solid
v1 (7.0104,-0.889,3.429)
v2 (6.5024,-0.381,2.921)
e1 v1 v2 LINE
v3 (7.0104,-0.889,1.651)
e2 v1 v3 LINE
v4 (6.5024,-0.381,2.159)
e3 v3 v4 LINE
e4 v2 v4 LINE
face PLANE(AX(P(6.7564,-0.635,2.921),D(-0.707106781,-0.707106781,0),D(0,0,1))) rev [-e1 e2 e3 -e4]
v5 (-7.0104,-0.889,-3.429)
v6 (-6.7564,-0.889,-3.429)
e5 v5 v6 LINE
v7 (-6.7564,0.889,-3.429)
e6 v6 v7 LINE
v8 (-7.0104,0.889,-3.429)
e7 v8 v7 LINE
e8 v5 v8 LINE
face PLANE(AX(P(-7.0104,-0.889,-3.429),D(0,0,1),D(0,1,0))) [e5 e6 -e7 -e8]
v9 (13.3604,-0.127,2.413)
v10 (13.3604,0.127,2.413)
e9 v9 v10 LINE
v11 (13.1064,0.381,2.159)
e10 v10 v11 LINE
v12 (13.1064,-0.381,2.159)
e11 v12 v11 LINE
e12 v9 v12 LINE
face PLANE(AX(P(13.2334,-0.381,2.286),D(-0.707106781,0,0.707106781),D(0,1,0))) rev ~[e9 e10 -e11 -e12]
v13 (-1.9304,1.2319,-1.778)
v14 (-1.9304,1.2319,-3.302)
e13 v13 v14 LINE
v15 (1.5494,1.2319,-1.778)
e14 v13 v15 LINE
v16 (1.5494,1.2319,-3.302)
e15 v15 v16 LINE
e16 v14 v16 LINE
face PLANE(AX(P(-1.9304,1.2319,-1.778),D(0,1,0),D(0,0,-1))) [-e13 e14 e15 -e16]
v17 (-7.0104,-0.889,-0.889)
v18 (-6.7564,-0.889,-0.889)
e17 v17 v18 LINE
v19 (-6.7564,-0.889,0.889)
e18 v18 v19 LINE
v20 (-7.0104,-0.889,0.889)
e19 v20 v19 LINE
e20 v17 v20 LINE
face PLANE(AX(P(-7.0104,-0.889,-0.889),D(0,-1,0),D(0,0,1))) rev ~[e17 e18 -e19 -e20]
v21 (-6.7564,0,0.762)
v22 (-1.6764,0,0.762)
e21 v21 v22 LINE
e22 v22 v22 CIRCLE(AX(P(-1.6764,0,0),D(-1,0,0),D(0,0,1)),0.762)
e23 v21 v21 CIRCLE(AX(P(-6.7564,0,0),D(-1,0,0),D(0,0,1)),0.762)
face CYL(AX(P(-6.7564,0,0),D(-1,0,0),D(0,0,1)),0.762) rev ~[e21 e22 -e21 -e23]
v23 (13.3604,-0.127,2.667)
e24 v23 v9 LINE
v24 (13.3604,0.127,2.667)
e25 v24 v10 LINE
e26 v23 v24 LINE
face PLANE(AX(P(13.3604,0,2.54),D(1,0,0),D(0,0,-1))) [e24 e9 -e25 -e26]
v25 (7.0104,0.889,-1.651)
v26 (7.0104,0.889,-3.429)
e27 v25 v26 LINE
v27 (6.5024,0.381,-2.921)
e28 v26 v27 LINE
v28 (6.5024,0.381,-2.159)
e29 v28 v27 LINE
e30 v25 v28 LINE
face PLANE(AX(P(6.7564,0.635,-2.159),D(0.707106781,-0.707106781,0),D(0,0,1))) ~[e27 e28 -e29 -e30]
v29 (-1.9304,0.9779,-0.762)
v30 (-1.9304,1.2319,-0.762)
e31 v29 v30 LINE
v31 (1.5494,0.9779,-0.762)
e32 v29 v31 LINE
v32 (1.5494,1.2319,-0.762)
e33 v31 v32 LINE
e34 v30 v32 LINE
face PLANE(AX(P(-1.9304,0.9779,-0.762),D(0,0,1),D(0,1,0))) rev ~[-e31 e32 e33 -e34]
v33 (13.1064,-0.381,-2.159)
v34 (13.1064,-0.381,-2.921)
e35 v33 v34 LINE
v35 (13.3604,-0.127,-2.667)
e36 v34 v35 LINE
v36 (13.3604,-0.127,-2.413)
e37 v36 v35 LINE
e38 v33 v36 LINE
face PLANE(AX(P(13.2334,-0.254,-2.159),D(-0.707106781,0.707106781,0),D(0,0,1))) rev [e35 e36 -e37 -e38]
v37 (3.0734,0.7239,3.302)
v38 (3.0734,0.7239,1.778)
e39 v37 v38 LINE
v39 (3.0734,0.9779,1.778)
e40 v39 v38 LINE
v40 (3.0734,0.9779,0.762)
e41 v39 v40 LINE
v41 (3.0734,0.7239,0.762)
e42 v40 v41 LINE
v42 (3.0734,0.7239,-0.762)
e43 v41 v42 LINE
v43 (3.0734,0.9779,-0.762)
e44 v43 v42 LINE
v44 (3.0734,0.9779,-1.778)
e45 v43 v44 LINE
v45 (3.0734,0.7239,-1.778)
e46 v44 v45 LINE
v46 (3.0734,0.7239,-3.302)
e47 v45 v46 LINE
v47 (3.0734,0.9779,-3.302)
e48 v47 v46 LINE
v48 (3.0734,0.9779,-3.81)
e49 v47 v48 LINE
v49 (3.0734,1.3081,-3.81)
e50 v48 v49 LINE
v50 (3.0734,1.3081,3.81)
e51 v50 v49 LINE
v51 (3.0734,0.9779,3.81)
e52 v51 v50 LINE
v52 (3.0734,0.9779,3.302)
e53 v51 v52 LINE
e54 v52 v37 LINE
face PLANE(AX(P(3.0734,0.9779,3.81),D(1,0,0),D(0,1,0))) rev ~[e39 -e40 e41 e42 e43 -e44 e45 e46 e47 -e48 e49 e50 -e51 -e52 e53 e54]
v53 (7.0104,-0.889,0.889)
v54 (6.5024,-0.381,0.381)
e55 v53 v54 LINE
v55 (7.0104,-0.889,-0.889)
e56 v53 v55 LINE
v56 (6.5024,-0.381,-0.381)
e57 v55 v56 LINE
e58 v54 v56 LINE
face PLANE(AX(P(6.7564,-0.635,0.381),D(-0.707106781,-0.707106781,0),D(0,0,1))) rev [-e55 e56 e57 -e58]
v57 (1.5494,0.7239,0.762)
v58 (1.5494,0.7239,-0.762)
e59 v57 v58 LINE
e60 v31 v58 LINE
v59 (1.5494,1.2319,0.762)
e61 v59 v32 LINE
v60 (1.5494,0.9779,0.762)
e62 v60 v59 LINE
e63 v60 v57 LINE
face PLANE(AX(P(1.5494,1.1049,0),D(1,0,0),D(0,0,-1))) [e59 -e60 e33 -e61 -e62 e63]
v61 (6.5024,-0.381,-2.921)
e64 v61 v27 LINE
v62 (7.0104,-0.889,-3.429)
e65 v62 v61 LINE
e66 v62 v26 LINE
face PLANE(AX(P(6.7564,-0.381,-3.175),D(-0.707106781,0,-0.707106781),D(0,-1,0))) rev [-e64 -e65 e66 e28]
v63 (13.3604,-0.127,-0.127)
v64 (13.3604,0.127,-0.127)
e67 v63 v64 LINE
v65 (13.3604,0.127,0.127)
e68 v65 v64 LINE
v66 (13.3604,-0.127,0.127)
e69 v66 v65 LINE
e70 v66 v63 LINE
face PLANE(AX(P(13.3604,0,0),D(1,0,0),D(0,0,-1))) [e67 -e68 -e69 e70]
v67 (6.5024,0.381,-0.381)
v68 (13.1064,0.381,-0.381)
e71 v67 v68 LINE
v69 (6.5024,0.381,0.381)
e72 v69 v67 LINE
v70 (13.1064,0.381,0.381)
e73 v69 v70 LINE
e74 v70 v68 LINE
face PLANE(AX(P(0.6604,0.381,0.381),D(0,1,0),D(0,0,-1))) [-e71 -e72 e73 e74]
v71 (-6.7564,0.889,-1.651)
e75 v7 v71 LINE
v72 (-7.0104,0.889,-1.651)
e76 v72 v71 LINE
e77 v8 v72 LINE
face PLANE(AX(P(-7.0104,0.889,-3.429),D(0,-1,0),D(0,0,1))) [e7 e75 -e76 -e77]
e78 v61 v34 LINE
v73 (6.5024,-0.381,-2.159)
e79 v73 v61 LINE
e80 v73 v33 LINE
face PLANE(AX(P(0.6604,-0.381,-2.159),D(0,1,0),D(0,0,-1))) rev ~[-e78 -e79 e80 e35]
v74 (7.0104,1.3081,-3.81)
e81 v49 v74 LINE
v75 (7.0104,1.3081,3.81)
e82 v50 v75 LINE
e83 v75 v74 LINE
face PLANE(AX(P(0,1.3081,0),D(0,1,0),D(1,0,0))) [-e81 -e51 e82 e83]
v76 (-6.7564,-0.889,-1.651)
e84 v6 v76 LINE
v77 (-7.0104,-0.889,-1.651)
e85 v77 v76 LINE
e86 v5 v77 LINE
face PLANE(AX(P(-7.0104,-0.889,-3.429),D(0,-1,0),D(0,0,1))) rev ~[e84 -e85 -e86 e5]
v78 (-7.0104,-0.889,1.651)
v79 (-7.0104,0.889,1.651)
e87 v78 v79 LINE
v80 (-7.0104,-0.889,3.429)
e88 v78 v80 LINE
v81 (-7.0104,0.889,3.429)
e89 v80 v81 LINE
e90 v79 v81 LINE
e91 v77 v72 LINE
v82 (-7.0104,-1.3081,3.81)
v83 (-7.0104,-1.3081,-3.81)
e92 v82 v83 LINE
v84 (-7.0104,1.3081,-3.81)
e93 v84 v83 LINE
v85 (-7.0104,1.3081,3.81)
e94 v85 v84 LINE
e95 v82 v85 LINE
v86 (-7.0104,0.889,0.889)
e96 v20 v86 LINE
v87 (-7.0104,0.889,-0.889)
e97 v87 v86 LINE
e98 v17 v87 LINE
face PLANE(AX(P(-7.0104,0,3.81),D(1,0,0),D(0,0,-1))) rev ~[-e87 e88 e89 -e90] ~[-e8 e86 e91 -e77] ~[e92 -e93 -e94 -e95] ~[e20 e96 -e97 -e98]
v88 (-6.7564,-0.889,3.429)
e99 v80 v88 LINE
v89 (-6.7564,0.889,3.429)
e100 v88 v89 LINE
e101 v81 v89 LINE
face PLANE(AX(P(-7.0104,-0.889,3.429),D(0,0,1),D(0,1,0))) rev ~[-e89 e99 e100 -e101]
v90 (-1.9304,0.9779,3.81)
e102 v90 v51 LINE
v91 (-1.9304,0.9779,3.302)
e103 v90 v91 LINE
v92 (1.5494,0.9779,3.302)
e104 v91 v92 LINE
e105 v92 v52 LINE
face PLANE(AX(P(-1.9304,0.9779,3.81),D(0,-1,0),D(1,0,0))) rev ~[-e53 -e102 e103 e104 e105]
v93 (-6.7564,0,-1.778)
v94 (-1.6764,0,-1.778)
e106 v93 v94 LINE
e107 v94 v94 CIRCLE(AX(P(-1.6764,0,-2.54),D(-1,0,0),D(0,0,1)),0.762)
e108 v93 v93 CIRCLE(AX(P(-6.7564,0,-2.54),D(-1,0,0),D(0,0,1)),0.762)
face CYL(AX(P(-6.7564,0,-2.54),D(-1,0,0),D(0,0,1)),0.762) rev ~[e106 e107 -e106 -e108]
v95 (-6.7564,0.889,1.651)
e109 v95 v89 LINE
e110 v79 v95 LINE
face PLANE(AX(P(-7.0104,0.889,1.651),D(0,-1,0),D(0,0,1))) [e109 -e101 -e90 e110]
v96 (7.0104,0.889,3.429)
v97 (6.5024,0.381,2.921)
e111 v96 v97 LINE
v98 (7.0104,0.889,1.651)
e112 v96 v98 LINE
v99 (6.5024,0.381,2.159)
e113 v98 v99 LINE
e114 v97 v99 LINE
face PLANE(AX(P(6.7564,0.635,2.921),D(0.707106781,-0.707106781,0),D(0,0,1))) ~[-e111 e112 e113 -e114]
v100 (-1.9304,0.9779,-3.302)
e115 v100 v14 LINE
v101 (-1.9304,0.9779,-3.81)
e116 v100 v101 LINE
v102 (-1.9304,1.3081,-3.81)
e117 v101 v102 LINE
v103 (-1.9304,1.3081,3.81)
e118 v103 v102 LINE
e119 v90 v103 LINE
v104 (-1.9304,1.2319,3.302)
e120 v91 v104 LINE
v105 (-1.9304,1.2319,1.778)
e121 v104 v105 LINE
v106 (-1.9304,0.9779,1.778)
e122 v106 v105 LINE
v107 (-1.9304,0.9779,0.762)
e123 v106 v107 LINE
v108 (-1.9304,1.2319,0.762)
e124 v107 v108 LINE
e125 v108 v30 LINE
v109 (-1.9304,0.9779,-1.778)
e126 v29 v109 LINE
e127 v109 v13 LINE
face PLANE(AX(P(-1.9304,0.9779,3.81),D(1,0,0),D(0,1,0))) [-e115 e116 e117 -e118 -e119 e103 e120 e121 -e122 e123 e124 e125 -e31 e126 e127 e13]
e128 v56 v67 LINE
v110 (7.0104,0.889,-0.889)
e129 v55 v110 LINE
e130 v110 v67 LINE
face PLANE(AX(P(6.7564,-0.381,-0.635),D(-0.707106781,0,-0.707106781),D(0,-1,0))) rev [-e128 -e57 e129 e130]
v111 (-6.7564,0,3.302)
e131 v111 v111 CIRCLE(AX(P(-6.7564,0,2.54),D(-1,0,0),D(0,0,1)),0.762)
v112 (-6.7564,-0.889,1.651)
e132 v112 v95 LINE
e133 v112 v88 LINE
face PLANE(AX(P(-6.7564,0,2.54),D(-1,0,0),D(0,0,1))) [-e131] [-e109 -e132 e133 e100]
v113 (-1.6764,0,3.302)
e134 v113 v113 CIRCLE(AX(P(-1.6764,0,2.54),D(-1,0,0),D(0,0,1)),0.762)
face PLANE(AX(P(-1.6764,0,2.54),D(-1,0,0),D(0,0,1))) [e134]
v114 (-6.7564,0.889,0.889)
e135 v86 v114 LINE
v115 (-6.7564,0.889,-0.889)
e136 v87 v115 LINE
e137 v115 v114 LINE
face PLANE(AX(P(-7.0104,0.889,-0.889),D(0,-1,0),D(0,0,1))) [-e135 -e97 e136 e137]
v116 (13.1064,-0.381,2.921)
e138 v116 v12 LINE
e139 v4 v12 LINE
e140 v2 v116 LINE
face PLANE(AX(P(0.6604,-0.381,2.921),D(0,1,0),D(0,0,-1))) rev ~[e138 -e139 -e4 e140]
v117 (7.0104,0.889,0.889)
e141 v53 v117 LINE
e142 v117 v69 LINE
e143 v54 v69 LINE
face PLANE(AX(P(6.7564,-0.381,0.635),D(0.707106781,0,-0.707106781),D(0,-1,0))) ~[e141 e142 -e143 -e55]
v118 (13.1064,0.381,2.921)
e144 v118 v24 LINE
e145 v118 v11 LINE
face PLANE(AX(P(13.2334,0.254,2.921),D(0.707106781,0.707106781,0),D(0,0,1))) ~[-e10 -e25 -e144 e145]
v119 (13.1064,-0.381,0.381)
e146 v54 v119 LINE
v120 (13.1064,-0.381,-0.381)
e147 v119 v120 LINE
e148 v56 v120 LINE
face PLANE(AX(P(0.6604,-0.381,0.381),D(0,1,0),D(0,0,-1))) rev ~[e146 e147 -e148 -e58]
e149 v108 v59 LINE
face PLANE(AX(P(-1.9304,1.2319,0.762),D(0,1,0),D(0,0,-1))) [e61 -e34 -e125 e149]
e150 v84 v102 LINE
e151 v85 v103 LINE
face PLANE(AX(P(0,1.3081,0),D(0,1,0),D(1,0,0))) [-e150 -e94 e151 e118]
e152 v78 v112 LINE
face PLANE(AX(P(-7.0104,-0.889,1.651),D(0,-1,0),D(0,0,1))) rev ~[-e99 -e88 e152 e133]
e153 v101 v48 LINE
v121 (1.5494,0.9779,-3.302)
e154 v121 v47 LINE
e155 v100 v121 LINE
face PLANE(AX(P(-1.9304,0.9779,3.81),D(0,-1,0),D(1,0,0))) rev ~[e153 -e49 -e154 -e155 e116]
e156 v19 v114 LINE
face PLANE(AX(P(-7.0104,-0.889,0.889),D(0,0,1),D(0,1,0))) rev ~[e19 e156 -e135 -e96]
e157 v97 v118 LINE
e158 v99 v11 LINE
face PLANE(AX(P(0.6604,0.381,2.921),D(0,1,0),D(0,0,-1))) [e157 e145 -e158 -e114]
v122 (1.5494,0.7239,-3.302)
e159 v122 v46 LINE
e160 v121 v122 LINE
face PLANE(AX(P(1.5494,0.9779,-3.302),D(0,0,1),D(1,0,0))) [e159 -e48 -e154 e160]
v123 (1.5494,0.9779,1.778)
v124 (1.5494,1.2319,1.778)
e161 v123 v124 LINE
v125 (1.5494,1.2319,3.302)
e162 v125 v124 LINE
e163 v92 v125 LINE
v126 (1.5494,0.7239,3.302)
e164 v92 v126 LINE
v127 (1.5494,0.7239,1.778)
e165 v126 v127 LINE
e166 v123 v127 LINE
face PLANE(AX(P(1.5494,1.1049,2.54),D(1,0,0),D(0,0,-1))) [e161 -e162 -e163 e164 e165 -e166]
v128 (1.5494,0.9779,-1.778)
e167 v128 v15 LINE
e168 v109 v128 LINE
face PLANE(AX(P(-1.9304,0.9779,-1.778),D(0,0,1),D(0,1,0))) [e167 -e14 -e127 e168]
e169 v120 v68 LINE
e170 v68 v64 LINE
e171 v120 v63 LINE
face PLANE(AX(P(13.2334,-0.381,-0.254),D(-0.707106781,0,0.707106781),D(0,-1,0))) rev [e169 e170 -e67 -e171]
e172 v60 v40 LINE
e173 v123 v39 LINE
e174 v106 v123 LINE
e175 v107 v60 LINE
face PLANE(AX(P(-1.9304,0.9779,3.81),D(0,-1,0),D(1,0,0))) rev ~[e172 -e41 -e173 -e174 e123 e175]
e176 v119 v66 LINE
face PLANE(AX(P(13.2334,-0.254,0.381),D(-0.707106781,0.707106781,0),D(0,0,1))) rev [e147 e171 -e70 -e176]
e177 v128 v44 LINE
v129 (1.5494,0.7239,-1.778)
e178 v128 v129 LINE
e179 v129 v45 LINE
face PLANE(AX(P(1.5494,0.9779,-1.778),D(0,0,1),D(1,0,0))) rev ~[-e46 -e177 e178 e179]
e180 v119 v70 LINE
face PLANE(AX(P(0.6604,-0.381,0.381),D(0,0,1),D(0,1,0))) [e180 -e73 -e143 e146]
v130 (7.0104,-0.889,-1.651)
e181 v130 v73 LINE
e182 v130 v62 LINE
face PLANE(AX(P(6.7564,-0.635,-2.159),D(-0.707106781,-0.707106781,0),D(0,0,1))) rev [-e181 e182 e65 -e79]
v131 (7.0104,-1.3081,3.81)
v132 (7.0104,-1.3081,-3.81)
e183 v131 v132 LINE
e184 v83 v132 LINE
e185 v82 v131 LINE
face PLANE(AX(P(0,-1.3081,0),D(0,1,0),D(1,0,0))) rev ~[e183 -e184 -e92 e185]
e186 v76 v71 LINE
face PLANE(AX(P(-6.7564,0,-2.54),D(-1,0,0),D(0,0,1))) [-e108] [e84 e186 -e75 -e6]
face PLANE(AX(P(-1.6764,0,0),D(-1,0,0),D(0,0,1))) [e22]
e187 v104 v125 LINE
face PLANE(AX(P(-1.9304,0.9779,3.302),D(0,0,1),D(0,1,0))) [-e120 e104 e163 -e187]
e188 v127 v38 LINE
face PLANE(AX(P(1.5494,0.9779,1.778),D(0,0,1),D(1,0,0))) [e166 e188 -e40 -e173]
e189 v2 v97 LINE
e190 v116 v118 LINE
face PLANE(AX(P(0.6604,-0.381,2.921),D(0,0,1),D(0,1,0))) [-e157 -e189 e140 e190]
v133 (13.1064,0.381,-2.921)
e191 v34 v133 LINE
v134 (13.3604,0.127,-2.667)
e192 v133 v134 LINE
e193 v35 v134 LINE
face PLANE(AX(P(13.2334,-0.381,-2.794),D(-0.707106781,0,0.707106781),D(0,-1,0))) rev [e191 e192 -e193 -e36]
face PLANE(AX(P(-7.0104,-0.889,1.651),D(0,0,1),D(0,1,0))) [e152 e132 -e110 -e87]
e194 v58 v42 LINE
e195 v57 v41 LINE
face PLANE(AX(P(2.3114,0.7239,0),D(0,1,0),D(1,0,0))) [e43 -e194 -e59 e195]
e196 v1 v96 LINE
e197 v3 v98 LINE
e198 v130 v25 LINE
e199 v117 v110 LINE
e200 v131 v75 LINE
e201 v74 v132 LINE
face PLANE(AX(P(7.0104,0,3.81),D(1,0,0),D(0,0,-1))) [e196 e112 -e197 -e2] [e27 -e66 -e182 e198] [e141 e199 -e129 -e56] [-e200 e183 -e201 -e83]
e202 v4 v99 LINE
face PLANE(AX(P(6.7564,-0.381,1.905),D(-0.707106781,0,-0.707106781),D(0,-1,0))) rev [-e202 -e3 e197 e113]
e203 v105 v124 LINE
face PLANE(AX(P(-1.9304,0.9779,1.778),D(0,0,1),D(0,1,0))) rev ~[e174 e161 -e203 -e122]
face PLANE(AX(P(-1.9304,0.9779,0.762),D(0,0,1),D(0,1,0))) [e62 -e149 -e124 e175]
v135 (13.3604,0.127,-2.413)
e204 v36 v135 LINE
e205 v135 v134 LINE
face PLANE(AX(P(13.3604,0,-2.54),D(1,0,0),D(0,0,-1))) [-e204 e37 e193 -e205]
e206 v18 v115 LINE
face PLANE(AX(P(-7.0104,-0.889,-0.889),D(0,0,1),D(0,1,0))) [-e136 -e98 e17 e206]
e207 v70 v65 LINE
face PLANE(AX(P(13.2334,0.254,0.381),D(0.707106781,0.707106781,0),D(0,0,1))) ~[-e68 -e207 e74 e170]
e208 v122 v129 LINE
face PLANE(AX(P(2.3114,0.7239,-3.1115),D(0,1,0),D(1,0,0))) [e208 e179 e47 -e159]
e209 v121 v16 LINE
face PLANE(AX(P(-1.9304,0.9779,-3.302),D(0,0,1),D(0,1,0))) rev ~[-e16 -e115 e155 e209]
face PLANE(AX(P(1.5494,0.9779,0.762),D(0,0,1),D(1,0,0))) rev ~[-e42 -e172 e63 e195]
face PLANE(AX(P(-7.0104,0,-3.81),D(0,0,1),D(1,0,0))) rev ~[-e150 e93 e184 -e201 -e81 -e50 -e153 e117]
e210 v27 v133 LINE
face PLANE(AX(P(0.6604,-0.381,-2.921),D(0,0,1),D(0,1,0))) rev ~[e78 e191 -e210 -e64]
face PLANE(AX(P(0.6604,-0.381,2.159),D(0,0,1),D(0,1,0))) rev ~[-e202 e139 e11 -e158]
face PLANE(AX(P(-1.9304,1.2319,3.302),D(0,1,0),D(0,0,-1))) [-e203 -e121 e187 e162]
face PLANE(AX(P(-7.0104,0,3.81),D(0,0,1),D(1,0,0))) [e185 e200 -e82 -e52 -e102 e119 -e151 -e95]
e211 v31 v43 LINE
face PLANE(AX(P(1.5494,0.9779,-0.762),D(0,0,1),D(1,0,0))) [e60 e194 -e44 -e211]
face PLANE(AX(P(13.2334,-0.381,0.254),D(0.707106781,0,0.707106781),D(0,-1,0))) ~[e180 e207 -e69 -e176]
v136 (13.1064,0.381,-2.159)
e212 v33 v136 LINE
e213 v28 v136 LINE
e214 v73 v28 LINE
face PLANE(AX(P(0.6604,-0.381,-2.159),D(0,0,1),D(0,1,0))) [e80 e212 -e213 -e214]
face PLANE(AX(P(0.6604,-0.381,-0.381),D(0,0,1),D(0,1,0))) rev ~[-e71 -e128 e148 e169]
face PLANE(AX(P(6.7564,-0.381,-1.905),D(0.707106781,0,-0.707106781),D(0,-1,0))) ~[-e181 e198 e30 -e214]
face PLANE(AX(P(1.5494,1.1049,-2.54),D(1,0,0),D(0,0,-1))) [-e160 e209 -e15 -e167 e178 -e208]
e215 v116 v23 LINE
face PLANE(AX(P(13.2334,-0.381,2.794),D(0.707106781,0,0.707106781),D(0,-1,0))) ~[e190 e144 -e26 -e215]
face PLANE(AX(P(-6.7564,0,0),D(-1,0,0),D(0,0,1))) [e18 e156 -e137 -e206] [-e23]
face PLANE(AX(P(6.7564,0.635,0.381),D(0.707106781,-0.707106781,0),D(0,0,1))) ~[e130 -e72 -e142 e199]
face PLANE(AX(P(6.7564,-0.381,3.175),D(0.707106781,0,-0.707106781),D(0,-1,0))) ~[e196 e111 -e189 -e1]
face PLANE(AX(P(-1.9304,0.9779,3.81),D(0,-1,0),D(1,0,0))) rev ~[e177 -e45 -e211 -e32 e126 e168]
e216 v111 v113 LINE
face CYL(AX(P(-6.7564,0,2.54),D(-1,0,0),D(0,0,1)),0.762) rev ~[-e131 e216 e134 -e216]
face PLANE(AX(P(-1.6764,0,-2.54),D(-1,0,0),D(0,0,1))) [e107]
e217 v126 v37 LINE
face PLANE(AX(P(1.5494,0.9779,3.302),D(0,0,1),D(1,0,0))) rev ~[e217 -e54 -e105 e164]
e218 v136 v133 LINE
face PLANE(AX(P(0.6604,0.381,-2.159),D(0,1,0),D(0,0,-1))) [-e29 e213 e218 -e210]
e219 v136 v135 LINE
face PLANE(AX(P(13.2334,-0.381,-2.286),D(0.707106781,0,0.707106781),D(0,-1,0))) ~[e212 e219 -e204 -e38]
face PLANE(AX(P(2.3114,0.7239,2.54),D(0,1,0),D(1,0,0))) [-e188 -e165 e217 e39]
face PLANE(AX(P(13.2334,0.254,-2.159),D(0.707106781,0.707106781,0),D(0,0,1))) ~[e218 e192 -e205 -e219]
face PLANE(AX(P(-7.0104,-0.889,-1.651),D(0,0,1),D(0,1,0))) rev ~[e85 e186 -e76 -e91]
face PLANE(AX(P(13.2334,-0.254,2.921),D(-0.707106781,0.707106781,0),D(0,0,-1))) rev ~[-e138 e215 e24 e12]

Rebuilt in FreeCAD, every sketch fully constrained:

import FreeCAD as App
import Part
import Sketcher
from FreeCAD import Vector
Q = App.Units.Quantity


def edges_at(feature, points):
    """Names of the edges that pass closest to the given points."""
    edges = feature.Shape.Edges
    near = lambda p: min(range(len(edges)), key=lambda i: edges[i].distToShape(Part.Vertex(*p))[0])
    return sorted({f"Edge{near(p) + 1}" for p in points})

doc = App.newDocument("Part")
params = doc.addObject("Spreadsheet::Sheet", "Params")
for row, (alias, value) in enumerate([
    ("sketch1_height", "0.3 in"),
    ("sketch1_width", "0.552 in"),
    ("pad1_length", "0.103 in"),
    ("sketch2_width", "0.03 in"),
    ("pocket1_length", "0.25 in"),
    ("chamfer_size", "0.02 in"),
    ("sketch3_width", "0.07 in"),
    ("pocket2_length", "0.01 in"),
    ("sketch4_diameter", "0.06 in"),
    ("pocket3_length", "0.2 in"),
    ("sketch5_width", "0.197 in"),
    ("sketch5_height", "0.026 in"),
    ("sketch6_width", "0.06 in"),
    ("pocket5_length", "0.01 in"),
    ("sketch7_width", "0.01 in"),
    ("sketch7_height", "0.06 in"),
    ("pad2_length", "0.137 in"),
    ("sketch8_width", "0.03 in"),
    ("pad3_length", "0.5 in"),
    ("chamfer2_size", "0.01 in"),
], start=1):
    params.set(f"A{row}", alias)
    params.set(f"B{row}", "=" + value)
    params.setAlias(f"B{row}", alias)

body = doc.addObject("PartDesign::Body", "Body")

sketch1 = doc.addObject("Sketcher::SketchObject", "Sketch")
body.addObject(sketch1)
sketch1.AttachmentSupport = (doc.XZ_Plane, [""])
sketch1.MapMode = "FlatFace"
sketch1.addGeometry(Part.LineSegment(Vector(-7.0104, -3.81, 0), Vector(-7.0104, 3.81, 0)), False)
sketch1.addGeometry(Part.LineSegment(Vector(-7.0104, 3.81, 0), Vector(7.0104, 3.81, 0)), False)
sketch1.addGeometry(Part.LineSegment(Vector(7.0104, 3.81, 0), Vector(7.0104, -3.81, 0)), False)
sketch1.addGeometry(Part.LineSegment(Vector(7.0104, -3.81, 0), Vector(-7.0104, -3.81, 0)), False)
sketch1.addConstraint(Sketcher.Constraint("Coincident", 0, 2, 1, 1))
sketch1.addConstraint(Sketcher.Constraint("Coincident", 1, 2, 2, 1))
sketch1.addConstraint(Sketcher.Constraint("Coincident", 2, 2, 3, 1))
sketch1.addConstraint(Sketcher.Constraint("Coincident", 3, 2, 0, 1))
sketch1.addConstraint(Sketcher.Constraint("Vertical", 0))
sketch1.addConstraint(Sketcher.Constraint("Horizontal", 1))
sketch1.addConstraint(Sketcher.Constraint("Vertical", 2))
sketch1.addConstraint(Sketcher.Constraint("Horizontal", 3))
sketch1.addConstraint(Sketcher.Constraint("Symmetric", 0, 2, 2, 2, -1, 1))
sketch1.addConstraint(Sketcher.Constraint("DistanceY", 0, 1, 0, 2, Q("0.3 in")))
sketch1.addConstraint(Sketcher.Constraint("DistanceX", 1, 1, 1, 2, Q("0.552 in")))
sketch1.setExpression("Constraints[9]", "Params.sketch1_height")
sketch1.setExpression("Constraints[10]", "Params.sketch1_width")
pad1 = doc.addObject("PartDesign::Pad", "Pad")
body.addObject(pad1)
pad1.Profile = sketch1
pad1.setExpression("Length", "Params.pad1_length")
pad1.Midplane = True

sketch2 = doc.addObject("Sketcher::SketchObject", "Sketch001")
body.addObject(sketch2)
sketch2.AttachmentSupport = (doc.YZ_Plane, [""])
sketch2.MapMode = "FlatFace"
sketch2.AttachmentOffset = App.Placement(Vector(0, 0, 0.276 * 25.4), App.Rotation())
sketch2.addGeometry(Part.LineSegment(Vector(0.381, 0.381, 0), Vector(-0.381, 0.381, 0)), False)
sketch2.addGeometry(Part.LineSegment(Vector(-0.381, 0.381, 0), Vector(-0.381, -0.381, 0)), False)
sketch2.addGeometry(Part.LineSegment(Vector(-0.381, -0.381, 0), Vector(0.381, -0.381, 0)), False)
sketch2.addGeometry(Part.LineSegment(Vector(0.381, -0.381, 0), Vector(0.381, 0.381, 0)), False)
sketch2.addGeometry(Part.LineSegment(Vector(0.381, 2.921, 0), Vector(-0.381, 2.921, 0)), False)
sketch2.addGeometry(Part.LineSegment(Vector(-0.381, 2.921, 0), Vector(-0.381, 2.159, 0)), False)
sketch2.addGeometry(Part.LineSegment(Vector(-0.381, 2.159, 0), Vector(0.381, 2.159, 0)), False)
sketch2.addGeometry(Part.LineSegment(Vector(0.381, 2.159, 0), Vector(0.381, 2.921, 0)), False)
sketch2.addGeometry(Part.LineSegment(Vector(0.381, -2.159, 0), Vector(-0.381, -2.159, 0)), False)
sketch2.addGeometry(Part.LineSegment(Vector(-0.381, -2.159, 0), Vector(-0.381, -2.921, 0)), False)
sketch2.addGeometry(Part.LineSegment(Vector(-0.381, -2.921, 0), Vector(0.381, -2.921, 0)), False)
sketch2.addGeometry(Part.LineSegment(Vector(0.381, -2.921, 0), Vector(0.381, -2.159, 0)), False)
sketch2.addConstraint(Sketcher.Constraint("Coincident", 0, 2, 1, 1))
sketch2.addConstraint(Sketcher.Constraint("Coincident", 1, 2, 2, 1))
sketch2.addConstraint(Sketcher.Constraint("Coincident", 2, 2, 3, 1))
sketch2.addConstraint(Sketcher.Constraint("Coincident", 3, 2, 0, 1))
sketch2.addConstraint(Sketcher.Constraint("Coincident", 4, 2, 5, 1))
sketch2.addConstraint(Sketcher.Constraint("Coincident", 5, 2, 6, 1))
sketch2.addConstraint(Sketcher.Constraint("Coincident", 6, 2, 7, 1))
sketch2.addConstraint(Sketcher.Constraint("Coincident", 7, 2, 4, 1))
sketch2.addConstraint(Sketcher.Constraint("Coincident", 8, 2, 9, 1))
sketch2.addConstraint(Sketcher.Constraint("Coincident", 9, 2, 10, 1))
sketch2.addConstraint(Sketcher.Constraint("Coincident", 10, 2, 11, 1))
sketch2.addConstraint(Sketcher.Constraint("Coincident", 11, 2, 8, 1))
sketch2.addConstraint(Sketcher.Constraint("Horizontal", 0))
sketch2.addConstraint(Sketcher.Constraint("Vertical", 1))
sketch2.addConstraint(Sketcher.Constraint("Horizontal", 2))
sketch2.addConstraint(Sketcher.Constraint("Vertical", 3))
sketch2.addConstraint(Sketcher.Constraint("Horizontal", 4))
sketch2.addConstraint(Sketcher.Constraint("Vertical", 5))
sketch2.addConstraint(Sketcher.Constraint("Horizontal", 6))
sketch2.addConstraint(Sketcher.Constraint("Vertical", 7))
sketch2.addConstraint(Sketcher.Constraint("Horizontal", 8))
sketch2.addConstraint(Sketcher.Constraint("Vertical", 9))
sketch2.addConstraint(Sketcher.Constraint("Horizontal", 10))
sketch2.addConstraint(Sketcher.Constraint("Vertical", 11))
sketch2.addConstraint(Sketcher.Constraint("Symmetric", 0, 2, 2, 2, -1, 1))
sketch2.addConstraint(Sketcher.Constraint("Symmetric", 6, 2, 8, 2, -1, 1))
sketch2.addConstraint(Sketcher.Constraint("Symmetric", 4, 2, 10, 2, -1, 1))
sketch2.addConstraint(Sketcher.Constraint("Vertical", 1, 2, 4, 2))
sketch2.addConstraint(Sketcher.Constraint("Vertical", 3, 2, 6, 2))
sketch2.addConstraint(Sketcher.Constraint("Equal", 10, 1))
sketch2.addConstraint(Sketcher.Constraint("Equal", 3, 5))
sketch2.addConstraint(Sketcher.Constraint("DistanceX", 0, 2, 0, 1, Q("0.03 in")))
sketch2.addConstraint(Sketcher.Constraint("DistanceY", 0, 2, 4, 2, Q("0.1 in")))
sketch2.setExpression("Constraints[31]", "Params.sketch2_width")
pocket1 = doc.addObject("PartDesign::Pocket", "Pocket")
body.addObject(pocket1)
pocket1.Profile = sketch2
pocket1.setExpression("Length", "Params.pocket1_length")
doc.recompute()

chamfer = doc.addObject("PartDesign::Chamfer", "Chamfer")
body.addObject(chamfer)
chamfer.Base = (pocket1, edges_at(pocket1, [
    (7.01, -0.381, 2.54),
    (7.01, 0, 2.159),
    (7.01, 0.381, 2.54),
    (7.01, 0, 2.921),
    (7.01, -0.381, 0),
    (7.01, 0, -0.381),
    (7.01, 0.381, 0),
    (7.01, 0, 0.381),
    (7.01, -0.381, -2.54),
    (7.01, 0, -2.921),
    (7.01, 0.381, -2.54),
    (7.01, 0, -2.159),
]))
chamfer.setExpression("Size", "Params.chamfer_size")

sketch3 = doc.addObject("Sketcher::SketchObject", "Sketch002")
body.addObject(sketch3)
sketch3.AttachmentSupport = (doc.YZ_Plane, [""])
sketch3.MapMode = "FlatFace"
sketch3.AttachmentOffset = App.Placement(Vector(0, 0, -0.276 * 25.4), App.Rotation())
sketch3.addGeometry(Part.LineSegment(Vector(0.889, -3.429, 0), Vector(-0.889, -3.429, 0)), False)
sketch3.addGeometry(Part.LineSegment(Vector(-0.889, -3.429, 0), Vector(-0.889, -1.651, 0)), False)
sketch3.addGeometry(Part.LineSegment(Vector(-0.889, -1.651, 0), Vector(0.889, -1.651, 0)), False)
sketch3.addGeometry(Part.LineSegment(Vector(0.889, -1.651, 0), Vector(0.889, -3.429, 0)), False)
sketch3.addGeometry(Part.LineSegment(Vector(0.889, -0.889, 0), Vector(-0.889, -0.889, 0)), False)
sketch3.addGeometry(Part.LineSegment(Vector(-0.889, -0.889, 0), Vector(-0.889, 0.889, 0)), False)
sketch3.addGeometry(Part.LineSegment(Vector(-0.889, 0.889, 0), Vector(0.889, 0.889, 0)), False)
sketch3.addGeometry(Part.LineSegment(Vector(0.889, 0.889, 0), Vector(0.889, -0.889, 0)), False)
sketch3.addGeometry(Part.LineSegment(Vector(0.889, 1.651, 0), Vector(-0.889, 1.651, 0)), False)
sketch3.addGeometry(Part.LineSegment(Vector(-0.889, 1.651, 0), Vector(-0.889, 3.429, 0)), False)
sketch3.addGeometry(Part.LineSegment(Vector(-0.889, 3.429, 0), Vector(0.889, 3.429, 0)), False)
sketch3.addGeometry(Part.LineSegment(Vector(0.889, 3.429, 0), Vector(0.889, 1.651, 0)), False)
sketch3.addConstraint(Sketcher.Constraint("Coincident", 0, 2, 1, 1))
sketch3.addConstraint(Sketcher.Constraint("Coincident", 1, 2, 2, 1))
sketch3.addConstraint(Sketcher.Constraint("Coincident", 2, 2, 3, 1))
sketch3.addConstraint(Sketcher.Constraint("Coincident", 3, 2, 0, 1))
sketch3.addConstraint(Sketcher.Constraint("Coincident", 4, 2, 5, 1))
sketch3.addConstraint(Sketcher.Constraint("Coincident", 5, 2, 6, 1))
sketch3.addConstraint(Sketcher.Constraint("Coincident", 6, 2, 7, 1))
sketch3.addConstraint(Sketcher.Constraint("Coincident", 7, 2, 4, 1))
sketch3.addConstraint(Sketcher.Constraint("Coincident", 8, 2, 9, 1))
sketch3.addConstraint(Sketcher.Constraint("Coincident", 9, 2, 10, 1))
sketch3.addConstraint(Sketcher.Constraint("Coincident", 10, 2, 11, 1))
sketch3.addConstraint(Sketcher.Constraint("Coincident", 11, 2, 8, 1))
sketch3.addConstraint(Sketcher.Constraint("Horizontal", 0))
sketch3.addConstraint(Sketcher.Constraint("Vertical", 1))
sketch3.addConstraint(Sketcher.Constraint("Horizontal", 2))
sketch3.addConstraint(Sketcher.Constraint("Vertical", 3))
sketch3.addConstraint(Sketcher.Constraint("Horizontal", 4))
sketch3.addConstraint(Sketcher.Constraint("Vertical", 5))
sketch3.addConstraint(Sketcher.Constraint("Horizontal", 6))
sketch3.addConstraint(Sketcher.Constraint("Vertical", 7))
sketch3.addConstraint(Sketcher.Constraint("Horizontal", 8))
sketch3.addConstraint(Sketcher.Constraint("Vertical", 9))
sketch3.addConstraint(Sketcher.Constraint("Horizontal", 10))
sketch3.addConstraint(Sketcher.Constraint("Vertical", 11))
sketch3.addConstraint(Sketcher.Constraint("Symmetric", 4, 2, 6, 2, -1, 1))
sketch3.addConstraint(Sketcher.Constraint("Symmetric", 2, 2, 8, 2, -1, 1))
sketch3.addConstraint(Sketcher.Constraint("Symmetric", 0, 2, 10, 2, -1, 1))
sketch3.addConstraint(Sketcher.Constraint("Vertical", 1, 2, 4, 2))
sketch3.addConstraint(Sketcher.Constraint("Vertical", 3, 2, 6, 2))
sketch3.addConstraint(Sketcher.Constraint("Equal", 10, 1))
sketch3.addConstraint(Sketcher.Constraint("Equal", 3, 5))
sketch3.addConstraint(Sketcher.Constraint("DistanceX", 0, 2, 0, 1, Q("0.07 in")))
sketch3.addConstraint(Sketcher.Constraint("DistanceY", 0, 2, 4, 2, Q("0.1 in")))
sketch3.setExpression("Constraints[31]", "Params.sketch3_width")
pocket2 = doc.addObject("PartDesign::Pocket", "Pocket001")
body.addObject(pocket2)
pocket2.Profile = sketch3
pocket2.setExpression("Length", "Params.pocket2_length")
pocket2.Reversed = True

sketch4 = doc.addObject("Sketcher::SketchObject", "Sketch003")
body.addObject(sketch4)
sketch4.AttachmentSupport = (doc.YZ_Plane, [""])
sketch4.MapMode = "FlatFace"
sketch4.AttachmentOffset = App.Placement(Vector(0, 0, -0.266 * 25.4), App.Rotation())
sketch4.addGeometry(Part.Circle(Vector(0, -2.54, 0), Vector(0, 0, 1), 0.762), False)
sketch4.addGeometry(Part.Circle(Vector(0, 0, 0), Vector(0, 0, 1), 0.762), False)
sketch4.addGeometry(Part.Circle(Vector(0, 2.54, 0), Vector(0, 0, 1), 0.762), False)
sketch4.addConstraint(Sketcher.Constraint("Coincident", 1, 3, -1, 1))
sketch4.addConstraint(Sketcher.Constraint("Equal", 0, 1))
sketch4.addConstraint(Sketcher.Constraint("Equal", 1, 2))
sketch4.addConstraint(Sketcher.Constraint("Symmetric", 0, 3, 2, 3, -1, 1))
sketch4.addConstraint(Sketcher.Constraint("PointOnObject", 0, 3, -2))
sketch4.addConstraint(Sketcher.Constraint("Diameter", 0, Q("0.06 in")))
sketch4.addConstraint(Sketcher.Constraint("DistanceY", 0, 3, -1, 1, Q("0.1 in")))
sketch4.setExpression("Constraints[5]", "Params.sketch4_diameter")
pocket3 = doc.addObject("PartDesign::Pocket", "Pocket002")
body.addObject(pocket3)
pocket3.Profile = sketch4
pocket3.setExpression("Length", "Params.pocket3_length")
pocket3.Reversed = True

sketch5 = doc.addObject("Sketcher::SketchObject", "Sketch004")
body.addObject(sketch5)
sketch5.AttachmentSupport = (doc.XY_Plane, [""])
sketch5.MapMode = "FlatFace"
sketch5.AttachmentOffset = App.Placement(Vector(0, 0, 0.15 * 25.4), App.Rotation())
sketch5.addGeometry(Part.LineSegment(Vector(-1.9304, 1.6383, 0), Vector(-1.9304, 0.9779, 0)), False)
sketch5.addGeometry(Part.LineSegment(Vector(-1.9304, 0.9779, 0), Vector(3.0734, 0.9779, 0)), False)
sketch5.addGeometry(Part.LineSegment(Vector(3.0734, 0.9779, 0), Vector(3.0734, 1.6383, 0)), False)
sketch5.addGeometry(Part.LineSegment(Vector(3.0734, 1.6383, 0), Vector(-1.9304, 1.6383, 0)), False)
sketch5.addConstraint(Sketcher.Constraint("Coincident", 0, 2, 1, 1))
sketch5.addConstraint(Sketcher.Constraint("Coincident", 1, 2, 2, 1))
sketch5.addConstraint(Sketcher.Constraint("Coincident", 2, 2, 3, 1))
sketch5.addConstraint(Sketcher.Constraint("Coincident", 3, 2, 0, 1))
sketch5.addConstraint(Sketcher.Constraint("Vertical", 0))
sketch5.addConstraint(Sketcher.Constraint("Horizontal", 1))
sketch5.addConstraint(Sketcher.Constraint("Vertical", 2))
sketch5.addConstraint(Sketcher.Constraint("Horizontal", 3))
sketch5.addConstraint(Sketcher.Constraint("DistanceX", 1, 1, 1, 2, Q("0.197 in")))
sketch5.addConstraint(Sketcher.Constraint("DistanceY", 0, 2, 0, 1, Q("0.026 in")))
sketch5.addConstraint(Sketcher.Constraint("DistanceX", 0, 2, -1, 1, Q("0.076 in")))
sketch5.addConstraint(Sketcher.Constraint("DistanceY", -1, 1, 0, 2, Q("0.0385 in")))
sketch5.setExpression("Constraints[8]", "Params.sketch5_width")
sketch5.setExpression("Constraints[9]", "Params.sketch5_height")
pocket4 = doc.addObject("PartDesign::Pocket", "Pocket003")
body.addObject(pocket4)
pocket4.Profile = sketch5
pocket4.Type = "ThroughAll"

sketch6 = doc.addObject("Sketcher::SketchObject", "Sketch005")
body.addObject(sketch6)
sketch6.AttachmentSupport = (doc.XZ_Plane, [""])
sketch6.MapMode = "FlatFace"
sketch6.AttachmentOffset = App.Placement(Vector(0, 0, -0.0385 * 25.4), App.Rotation())
sketch6.addGeometry(Part.LineSegment(Vector(1.5494, -3.302, 0), Vector(1.5494, -1.778, 0)), False)
sketch6.addGeometry(Part.LineSegment(Vector(1.5494, -1.778, 0), Vector(3.0734, -1.778, 0)), False)
sketch6.addGeometry(Part.LineSegment(Vector(3.0734, -1.778, 0), Vector(3.0734, -3.302, 0)), False)
sketch6.addGeometry(Part.LineSegment(Vector(3.0734, -3.302, 0), Vector(1.5494, -3.302, 0)), False)
sketch6.addGeometry(Part.LineSegment(Vector(1.5494, -0.762, 0), Vector(1.5494, 0.762, 0)), False)
sketch6.addGeometry(Part.LineSegment(Vector(1.5494, 0.762, 0), Vector(3.0734, 0.762, 0)), False)
sketch6.addGeometry(Part.LineSegment(Vector(3.0734, 0.762, 0), Vector(3.0734, -0.762, 0)), False)
sketch6.addGeometry(Part.LineSegment(Vector(3.0734, -0.762, 0), Vector(1.5494, -0.762, 0)), False)
sketch6.addGeometry(Part.LineSegment(Vector(1.5494, 1.778, 0), Vector(1.5494, 3.302, 0)), False)
sketch6.addGeometry(Part.LineSegment(Vector(1.5494, 3.302, 0), Vector(3.0734, 3.302, 0)), False)
sketch6.addGeometry(Part.LineSegment(Vector(3.0734, 3.302, 0), Vector(3.0734, 1.778, 0)), False)
sketch6.addGeometry(Part.LineSegment(Vector(3.0734, 1.778, 0), Vector(1.5494, 1.778, 0)), False)
sketch6.addConstraint(Sketcher.Constraint("Coincident", 0, 2, 1, 1))
sketch6.addConstraint(Sketcher.Constraint("Coincident", 1, 2, 2, 1))
sketch6.addConstraint(Sketcher.Constraint("Coincident", 2, 2, 3, 1))
sketch6.addConstraint(Sketcher.Constraint("Coincident", 3, 2, 0, 1))
sketch6.addConstraint(Sketcher.Constraint("Coincident", 4, 2, 5, 1))
sketch6.addConstraint(Sketcher.Constraint("Coincident", 5, 2, 6, 1))
sketch6.addConstraint(Sketcher.Constraint("Coincident", 6, 2, 7, 1))
sketch6.addConstraint(Sketcher.Constraint("Coincident", 7, 2, 4, 1))
sketch6.addConstraint(Sketcher.Constraint("Coincident", 8, 2, 9, 1))
sketch6.addConstraint(Sketcher.Constraint("Coincident", 9, 2, 10, 1))
sketch6.addConstraint(Sketcher.Constraint("Coincident", 10, 2, 11, 1))
sketch6.addConstraint(Sketcher.Constraint("Coincident", 11, 2, 8, 1))
sketch6.addConstraint(Sketcher.Constraint("Vertical", 0))
sketch6.addConstraint(Sketcher.Constraint("Horizontal", 1))
sketch6.addConstraint(Sketcher.Constraint("Vertical", 2))
sketch6.addConstraint(Sketcher.Constraint("Horizontal", 3))
sketch6.addConstraint(Sketcher.Constraint("Vertical", 4))
sketch6.addConstraint(Sketcher.Constraint("Horizontal", 5))
sketch6.addConstraint(Sketcher.Constraint("Vertical", 6))
sketch6.addConstraint(Sketcher.Constraint("Horizontal", 7))
sketch6.addConstraint(Sketcher.Constraint("Vertical", 8))
sketch6.addConstraint(Sketcher.Constraint("Horizontal", 9))
sketch6.addConstraint(Sketcher.Constraint("Vertical", 10))
sketch6.addConstraint(Sketcher.Constraint("Horizontal", 11))
sketch6.addConstraint(Sketcher.Constraint("Symmetric", 3, 2, 8, 2, -1))
sketch6.addConstraint(Sketcher.Constraint("Symmetric", 1, 2, 10, 2, -1))
sketch6.addConstraint(Sketcher.Constraint("Vertical", 3, 2, 4, 2))
sketch6.addConstraint(Sketcher.Constraint("Vertical", 2, 2, 5, 2))
sketch6.addConstraint(Sketcher.Constraint("Equal", 11, 0))
sketch6.addConstraint(Sketcher.Constraint("Equal", 2, 4))
sketch6.addConstraint(Sketcher.Constraint("DistanceX", 1, 1, 1, 2, Q("0.06 in")))
sketch6.addConstraint(Sketcher.Constraint("DistanceY", 0, 2, 4, 2, Q("0.1 in")))
sketch6.addConstraint(Sketcher.Constraint("DistanceY", 4, 2, 8, 2, Q("0.1 in")))
sketch6.addConstraint(Sketcher.Constraint("DistanceX", -1, 1, 0, 2, Q("0.061 in")))
sketch6.setExpression("Constraints[30]", "Params.sketch6_width")
pocket5 = doc.addObject("PartDesign::Pocket", "Pocket004")
body.addObject(pocket5)
pocket5.Profile = sketch6
pocket5.setExpression("Length", "Params.pocket5_length")
pocket5.Reversed = True

sketch7 = doc.addObject("Sketcher::SketchObject", "Sketch006")
body.addObject(sketch7)
sketch7.AttachmentSupport = (doc.YZ_Plane, [""])
sketch7.MapMode = "FlatFace"
sketch7.AttachmentOffset = App.Placement(Vector(0, 0, -0.076 * 25.4), App.Rotation())
sketch7.addGeometry(Part.LineSegment(Vector(1.2319, -1.778, 0), Vector(0.9779, -1.778, 0)), False)
sketch7.addGeometry(Part.LineSegment(Vector(0.9779, -1.778, 0), Vector(0.9779, -3.302, 0)), False)
sketch7.addGeometry(Part.LineSegment(Vector(0.9779, -3.302, 0), Vector(1.2319, -3.302, 0)), False)
sketch7.addGeometry(Part.LineSegment(Vector(1.2319, -3.302, 0), Vector(1.2319, -1.778, 0)), False)
sketch7.addGeometry(Part.LineSegment(Vector(1.2319, 0.762, 0), Vector(0.9779, 0.762, 0)), False)
sketch7.addGeometry(Part.LineSegment(Vector(0.9779, 0.762, 0), Vector(0.9779, -0.762, 0)), False)
sketch7.addGeometry(Part.LineSegment(Vector(0.9779, -0.762, 0), Vector(1.2319, -0.762, 0)), False)
sketch7.addGeometry(Part.LineSegment(Vector(1.2319, -0.762, 0), Vector(1.2319, 0.762, 0)), False)
sketch7.addGeometry(Part.LineSegment(Vector(1.2319, 3.302, 0), Vector(0.9779, 3.302, 0)), False)
sketch7.addGeometry(Part.LineSegment(Vector(0.9779, 3.302, 0), Vector(0.9779, 1.778, 0)), False)
sketch7.addGeometry(Part.LineSegment(Vector(0.9779, 1.778, 0), Vector(1.2319, 1.778, 0)), False)
sketch7.addGeometry(Part.LineSegment(Vector(1.2319, 1.778, 0), Vector(1.2319, 3.302, 0)), False)
sketch7.addConstraint(Sketcher.Constraint("Coincident", 0, 2, 1, 1))
sketch7.addConstraint(Sketcher.Constraint("Coincident", 1, 2, 2, 1))
sketch7.addConstraint(Sketcher.Constraint("Coincident", 2, 2, 3, 1))
sketch7.addConstraint(Sketcher.Constraint("Coincident", 3, 2, 0, 1))
sketch7.addConstraint(Sketcher.Constraint("Coincident", 4, 2, 5, 1))
sketch7.addConstraint(Sketcher.Constraint("Coincident", 5, 2, 6, 1))
sketch7.addConstraint(Sketcher.Constraint("Coincident", 6, 2, 7, 1))
sketch7.addConstraint(Sketcher.Constraint("Coincident", 7, 2, 4, 1))
sketch7.addConstraint(Sketcher.Constraint("Coincident", 8, 2, 9, 1))
sketch7.addConstraint(Sketcher.Constraint("Coincident", 9, 2, 10, 1))
sketch7.addConstraint(Sketcher.Constraint("Coincident", 10, 2, 11, 1))
sketch7.addConstraint(Sketcher.Constraint("Coincident", 11, 2, 8, 1))
sketch7.addConstraint(Sketcher.Constraint("Horizontal", 0))
sketch7.addConstraint(Sketcher.Constraint("Vertical", 1))
sketch7.addConstraint(Sketcher.Constraint("Horizontal", 2))
sketch7.addConstraint(Sketcher.Constraint("Vertical", 3))
sketch7.addConstraint(Sketcher.Constraint("Horizontal", 4))
sketch7.addConstraint(Sketcher.Constraint("Vertical", 5))
sketch7.addConstraint(Sketcher.Constraint("Horizontal", 6))
sketch7.addConstraint(Sketcher.Constraint("Vertical", 7))
sketch7.addConstraint(Sketcher.Constraint("Horizontal", 8))
sketch7.addConstraint(Sketcher.Constraint("Vertical", 9))
sketch7.addConstraint(Sketcher.Constraint("Horizontal", 10))
sketch7.addConstraint(Sketcher.Constraint("Vertical", 11))
sketch7.addConstraint(Sketcher.Constraint("Symmetric", 1, 2, 8, 2, -1))
sketch7.addConstraint(Sketcher.Constraint("Symmetric", 3, 2, 10, 2, -1))
sketch7.addConstraint(Sketcher.Constraint("Vertical", 1, 2, 4, 2))
sketch7.addConstraint(Sketcher.Constraint("Vertical", 3, 2, 6, 2))
sketch7.addConstraint(Sketcher.Constraint("Equal", 3, 5))
sketch7.addConstraint(Sketcher.Constraint("DistanceX", 0, 2, 0, 1, Q("0.01 in")))
sketch7.addConstraint(Sketcher.Constraint("DistanceY", 1, 2, 1, 1, Q("0.06 in")))
sketch7.addConstraint(Sketcher.Constraint("DistanceY", 0, 2, 4, 2, Q("0.1 in")))
sketch7.addConstraint(Sketcher.Constraint("DistanceY", 4, 2, 8, 2, Q("0.1 in")))
sketch7.addConstraint(Sketcher.Constraint("DistanceX", -1, 1, 0, 2, Q("0.0385 in")))
sketch7.setExpression("Constraints[29]", "Params.sketch7_width")
sketch7.setExpression("Constraints[30]", "Params.sketch7_height")
pad2 = doc.addObject("PartDesign::Pad", "Pad001")
body.addObject(pad2)
pad2.Profile = sketch7
pad2.setExpression("Length", "Params.pad2_length")

sketch8 = doc.addObject("Sketcher::SketchObject", "Sketch007")
body.addObject(sketch8)
sketch8.AttachmentSupport = (doc.YZ_Plane, [""])
sketch8.MapMode = "FlatFace"
sketch8.AttachmentOffset = App.Placement(Vector(0, 0, 0.026 * 25.4), App.Rotation())
sketch8.addGeometry(Part.LineSegment(Vector(0.381, 2.921, 0), Vector(-0.381, 2.921, 0)), False)
sketch8.addGeometry(Part.LineSegment(Vector(-0.381, 2.921, 0), Vector(-0.381, 2.159, 0)), False)
sketch8.addGeometry(Part.LineSegment(Vector(-0.381, 2.159, 0), Vector(0.381, 2.159, 0)), False)
sketch8.addGeometry(Part.LineSegment(Vector(0.381, 2.159, 0), Vector(0.381, 2.921, 0)), False)
sketch8.addGeometry(Part.LineSegment(Vector(0.381, 0.381, 0), Vector(-0.381, 0.381, 0)), False)
sketch8.addGeometry(Part.LineSegment(Vector(-0.381, 0.381, 0), Vector(-0.381, -0.381, 0)), False)
sketch8.addGeometry(Part.LineSegment(Vector(-0.381, -0.381, 0), Vector(0.381, -0.381, 0)), False)
sketch8.addGeometry(Part.LineSegment(Vector(0.381, -0.381, 0), Vector(0.381, 0.381, 0)), False)
sketch8.addGeometry(Part.LineSegment(Vector(0.381, -2.159, 0), Vector(-0.381, -2.159, 0)), False)
sketch8.addGeometry(Part.LineSegment(Vector(-0.381, -2.159, 0), Vector(-0.381, -2.921, 0)), False)
sketch8.addGeometry(Part.LineSegment(Vector(-0.381, -2.921, 0), Vector(0.381, -2.921, 0)), False)
sketch8.addGeometry(Part.LineSegment(Vector(0.381, -2.921, 0), Vector(0.381, -2.159, 0)), False)
sketch8.addConstraint(Sketcher.Constraint("Coincident", 0, 2, 1, 1))
sketch8.addConstraint(Sketcher.Constraint("Coincident", 1, 2, 2, 1))
sketch8.addConstraint(Sketcher.Constraint("Coincident", 2, 2, 3, 1))
sketch8.addConstraint(Sketcher.Constraint("Coincident", 3, 2, 0, 1))
sketch8.addConstraint(Sketcher.Constraint("Coincident", 4, 2, 5, 1))
sketch8.addConstraint(Sketcher.Constraint("Coincident", 5, 2, 6, 1))
sketch8.addConstraint(Sketcher.Constraint("Coincident", 6, 2, 7, 1))
sketch8.addConstraint(Sketcher.Constraint("Coincident", 7, 2, 4, 1))
sketch8.addConstraint(Sketcher.Constraint("Coincident", 8, 2, 9, 1))
sketch8.addConstraint(Sketcher.Constraint("Coincident", 9, 2, 10, 1))
sketch8.addConstraint(Sketcher.Constraint("Coincident", 10, 2, 11, 1))
sketch8.addConstraint(Sketcher.Constraint("Coincident", 11, 2, 8, 1))
sketch8.addConstraint(Sketcher.Constraint("Horizontal", 0))
sketch8.addConstraint(Sketcher.Constraint("Vertical", 1))
sketch8.addConstraint(Sketcher.Constraint("Horizontal", 2))
sketch8.addConstraint(Sketcher.Constraint("Vertical", 3))
sketch8.addConstraint(Sketcher.Constraint("Horizontal", 4))
sketch8.addConstraint(Sketcher.Constraint("Vertical", 5))
sketch8.addConstraint(Sketcher.Constraint("Horizontal", 6))
sketch8.addConstraint(Sketcher.Constraint("Vertical", 7))
sketch8.addConstraint(Sketcher.Constraint("Horizontal", 8))
sketch8.addConstraint(Sketcher.Constraint("Vertical", 9))
sketch8.addConstraint(Sketcher.Constraint("Horizontal", 10))
sketch8.addConstraint(Sketcher.Constraint("Vertical", 11))
sketch8.addConstraint(Sketcher.Constraint("Symmetric", 4, 2, 6, 2, -1, 1))
sketch8.addConstraint(Sketcher.Constraint("Symmetric", 2, 2, 8, 2, -1, 1))
sketch8.addConstraint(Sketcher.Constraint("Symmetric", 0, 2, 10, 2, -1, 1))
sketch8.addConstraint(Sketcher.Constraint("Vertical", 1, 2, 4, 2))
sketch8.addConstraint(Sketcher.Constraint("Vertical", 3, 2, 6, 2))
sketch8.addConstraint(Sketcher.Constraint("Equal", 10, 1))
sketch8.addConstraint(Sketcher.Constraint("Equal", 3, 5))
sketch8.addConstraint(Sketcher.Constraint("DistanceX", 0, 2, 0, 1, Q("0.03 in")))
sketch8.addConstraint(Sketcher.Constraint("DistanceY", 4, 2, 0, 2, Q("0.1 in")))
sketch8.setExpression("Constraints[31]", "Params.sketch8_width")
pad3 = doc.addObject("PartDesign::Pad", "Pad002")
body.addObject(pad3)
pad3.Profile = sketch8
pad3.setExpression("Length", "Params.pad3_length")
doc.recompute()

chamfer2 = doc.addObject("PartDesign::Chamfer", "Chamfer001")
body.addObject(chamfer2)
chamfer2.Base = (pad3, edges_at(pad3, [
    (13.36, 0, 2.921),
    (13.36, -0.381, 2.54),
    (13.36, 0, 2.159),
    (13.36, 0.381, 2.54),
    (13.36, 0, 0.381),
    (13.36, -0.381, 0),
    (13.36, 0, -0.381),
    (13.36, 0.381, 0),
    (13.36, 0, -2.159),
    (13.36, -0.381, -2.54),
    (13.36, 0, -2.921),
    (13.36, 0.381, -2.54),
]))
chamfer2.setExpression("Size", "Params.chamfer2_size")

doc.recompute()
